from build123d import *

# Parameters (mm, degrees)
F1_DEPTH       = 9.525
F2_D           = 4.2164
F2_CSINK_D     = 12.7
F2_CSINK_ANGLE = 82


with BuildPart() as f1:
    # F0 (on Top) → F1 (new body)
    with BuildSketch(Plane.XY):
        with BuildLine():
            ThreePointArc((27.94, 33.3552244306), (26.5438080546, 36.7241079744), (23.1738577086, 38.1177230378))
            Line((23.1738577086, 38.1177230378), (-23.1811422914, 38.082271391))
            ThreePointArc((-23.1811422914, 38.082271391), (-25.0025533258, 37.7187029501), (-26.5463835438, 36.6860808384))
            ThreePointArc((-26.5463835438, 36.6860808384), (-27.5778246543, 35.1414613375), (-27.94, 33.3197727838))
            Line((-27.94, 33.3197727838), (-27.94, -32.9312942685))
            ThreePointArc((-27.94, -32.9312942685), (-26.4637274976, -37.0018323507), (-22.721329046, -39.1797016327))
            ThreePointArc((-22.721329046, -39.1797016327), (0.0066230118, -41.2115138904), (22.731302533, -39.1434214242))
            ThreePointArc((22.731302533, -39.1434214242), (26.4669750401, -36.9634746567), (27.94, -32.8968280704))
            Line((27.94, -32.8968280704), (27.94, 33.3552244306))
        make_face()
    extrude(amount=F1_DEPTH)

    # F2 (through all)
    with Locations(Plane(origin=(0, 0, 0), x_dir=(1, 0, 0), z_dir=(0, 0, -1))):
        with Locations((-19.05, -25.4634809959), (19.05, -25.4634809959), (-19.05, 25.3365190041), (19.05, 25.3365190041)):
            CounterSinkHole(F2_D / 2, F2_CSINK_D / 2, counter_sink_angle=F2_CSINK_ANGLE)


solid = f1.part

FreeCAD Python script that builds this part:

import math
import FreeCAD as App
import Part
import Sketcher
Q = App.Units.Quantity

doc = App.newDocument("Part")
body = doc.addObject("PartDesign::Body", "Body")

# Sketch on XY plane
sketch1 = body.newObject("Sketcher::SketchObject", "Sketch")
sketch1.AttachmentSupport = (doc.getObject("XY_Plane"), [""])
sketch1.MapMode = "FlatFace"
sketch1.addGeometry(Part.ArcOfCircle(Part.Circle(App.Vector(23.2, 33.4, 0), App.Vector(0, 0, 1), 4.8), math.radians(0), math.radians(90)), False)
sketch1.addGeometry(Part.LineSegment(App.Vector(23.2, 38.1, 0), App.Vector(-23.2, 38.1, 0)), False)
sketch1.addGeometry(Part.ArcOfCircle(Part.Circle(App.Vector(-23.2, 33.3, 0), App.Vector(0, 0, 1), 4.8), math.radians(90), math.radians(135)), False)
sketch1.addGeometry(Part.ArcOfCircle(Part.Circle(App.Vector(-23.2, 33.3, 0), App.Vector(0, 0, 1), 4.8), math.radians(135), math.radians(180)), False)
sketch1.addGeometry(Part.LineSegment(App.Vector(-27.9, 33.3, 0), App.Vector(-27.9, -32.9, 0)), False)
sketch1.addGeometry(Part.ArcOfCircle(Part.Circle(App.Vector(-21.6, -32.9, 0), App.Vector(0, 0, 1), 6.3), math.radians(180), math.radians(260)), False)
sketch1.addGeometry(Part.ArcOfCircle(Part.Circle(App.Vector(-0.1, 85.8, 0), App.Vector(0, 0, 1), 127), math.radians(-100), math.radians(-80)), False)
sketch1.addGeometry(Part.ArcOfCircle(Part.Circle(App.Vector(21.6, -32.9, 0), App.Vector(0, 0, 1), 6.3), math.radians(-80), math.radians(0)), False)
sketch1.addGeometry(Part.LineSegment(App.Vector(27.9, -32.9, 0), App.Vector(27.9, 33.4, 0)), False)
sketch1.addConstraint(Sketcher.Constraint("Tangent", 0, 2, 1, 1))
sketch1.addConstraint(Sketcher.Constraint("Tangent", 1, 2, 2, 1))
sketch1.addConstraint(Sketcher.Constraint("Tangent", 2, 2, 3, 1))
sketch1.addConstraint(Sketcher.Constraint("Tangent", 3, 2, 4, 1))
sketch1.addConstraint(Sketcher.Constraint("Tangent", 4, 2, 5, 1))
sketch1.addConstraint(Sketcher.Constraint("Tangent", 5, 2, 6, 1))
sketch1.addConstraint(Sketcher.Constraint("Tangent", 6, 2, 7, 1))
sketch1.addConstraint(Sketcher.Constraint("Tangent", 7, 2, 8, 1))
sketch1.addConstraint(Sketcher.Constraint("Tangent", 8, 2, 0, 1))
sketch1.addConstraint(Sketcher.Constraint("Vertical", 4))
sketch1.addConstraint(Sketcher.Constraint("Vertical", 8))
sketch1.addConstraint(Sketcher.Constraint("Equal", 0, 2))
sketch1.addConstraint(Sketcher.Constraint("Equal", 2, 3))
sketch1.addConstraint(Sketcher.Constraint("Equal", 5, 7))
sketch1.addConstraint(Sketcher.Constraint("Radius", 6, Q("5 in")))
sketch1.addConstraint(Sketcher.Constraint("Radius", 5, Q("0.25 in")))
sketch1.addConstraint(Sketcher.Constraint("Radius", 0, Q("0.1875 in")))
sketch1.addConstraint(Sketcher.Constraint("DistanceX", 3, 2, -1, 1, Q("1.1 in")))
sketch1.addConstraint(Sketcher.Constraint("DistanceX", -1, 1, 7, 2, Q("1.1 in")))
sketch1.addConstraint(Sketcher.Constraint("DistanceY", 0, 3, 6, 3, Q("2.0643 in")))
sketch1.addConstraint(Sketcher.Constraint("DistanceY", 5, 2, -1, 1, 39.179702))
sketch1.addConstraint(Sketcher.Constraint("DistanceY", 7, 3, 2, 3, 66.216601))
sketch1.addConstraint(Sketcher.Constraint("DistanceY", 4, 2, 4, 1, 66.251067))
sketch1.addConstraint(Sketcher.Constraint("DistanceY", -1, 1, 2, 2, 36.686081))
pad1 = body.newObject("PartDesign::Pad", "Pad")
pad1.Profile = sketch1
pad1.Length = Q("0.375 in")

# Sketch on XY plane
sketch2 = body.newObject("Sketcher::SketchObject", "Sketch001")
sketch2.AttachmentSupport = (doc.getObject("XY_Plane"), [""])
sketch2.MapMode = "FlatFace"
sketch2.addGeometry(Part.Circle(App.Vector(-19.1, 25.5, 0), App.Vector(0, 0, 1), 2.1), False)
sketch2.addGeometry(Part.Circle(App.Vector(19.1, 25.5, 0), App.Vector(0, 0, 1), 2.1), False)
sketch2.addGeometry(Part.Circle(App.Vector(-19.1, -25.3, 0), App.Vector(0, 0, 1), 2.1), False)
sketch2.addGeometry(Part.Circle(App.Vector(19.1, -25.3, 0), App.Vector(0, 0, 1), 2.1), False)
sketch2.addConstraint(Sketcher.Constraint("Equal", 0, 1))
sketch2.addConstraint(Sketcher.Constraint("Equal", 1, 2))
sketch2.addConstraint(Sketcher.Constraint("Equal", 2, 3))
sketch2.addConstraint(Sketcher.Constraint("Symmetric", 0, 3, 1, 3, -2))
sketch2.addConstraint(Sketcher.Constraint("Symmetric", 2, 3, 3, 3, -2))
sketch2.addConstraint(Sketcher.Constraint("Vertical", 0, 3, 2, 3))
sketch2.addConstraint(Sketcher.Constraint("Diameter", 0, Q("0.166 in")))
sketch2.addConstraint(Sketcher.Constraint("DistanceY", 2, 3, 0, 3, Q("2 in")))
sketch2.addConstraint(Sketcher.Constraint("DistanceX", 0, 3, 1, 3, Q("1.5 in")))
sketch2.addConstraint(Sketcher.Constraint("DistanceY", -1, 1, 0, 3, 25.463481))
doc.recompute()
hole = body.newObject("PartDesign::Hole", "Hole")
hole.Profile = sketch2
hole.ThreadType = "None"
hole.Diameter = Q("0.166 in")
hole.DepthType = "ThroughAll"
hole.HoleCutType = "Countersink"
hole.HoleCutDiameter = Q("0.5 in")
hole.HoleCutCountersinkAngle = 82
hole.Reversed = True

doc.recompute()
